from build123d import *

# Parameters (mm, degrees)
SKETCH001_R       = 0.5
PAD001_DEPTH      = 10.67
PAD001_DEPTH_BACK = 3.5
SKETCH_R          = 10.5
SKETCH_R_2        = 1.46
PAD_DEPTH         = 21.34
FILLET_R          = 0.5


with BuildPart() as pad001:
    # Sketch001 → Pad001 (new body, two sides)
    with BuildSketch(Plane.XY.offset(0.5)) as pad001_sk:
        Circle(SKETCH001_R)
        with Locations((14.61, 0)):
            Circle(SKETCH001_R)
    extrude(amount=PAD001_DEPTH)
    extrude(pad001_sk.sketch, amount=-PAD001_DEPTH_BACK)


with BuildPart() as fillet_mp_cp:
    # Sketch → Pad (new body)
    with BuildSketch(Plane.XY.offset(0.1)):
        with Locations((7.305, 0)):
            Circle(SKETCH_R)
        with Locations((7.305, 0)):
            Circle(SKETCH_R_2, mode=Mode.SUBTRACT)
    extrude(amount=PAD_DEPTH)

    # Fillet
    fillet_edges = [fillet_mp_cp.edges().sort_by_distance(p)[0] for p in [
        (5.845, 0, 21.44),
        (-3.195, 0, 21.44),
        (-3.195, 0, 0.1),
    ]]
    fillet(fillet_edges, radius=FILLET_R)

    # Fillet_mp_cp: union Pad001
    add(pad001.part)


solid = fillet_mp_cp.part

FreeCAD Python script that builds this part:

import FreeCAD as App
import Part
import Sketcher
from FreeCAD import Vector


def edges_at(feature, points):
    """Names of the edges that pass closest to the given points."""
    edges = feature.Shape.Edges
    near = lambda p: min(range(len(edges)), key=lambda i: edges[i].distToShape(Part.Vertex(*p))[0])
    return sorted({f"Edge{near(p) + 1}" for p in points})

doc = App.newDocument("Part")
body = doc.addObject("PartDesign::Body", "Body")
body.AllowCompound = True

sketch1 = body.newObject("Sketcher::SketchObject", "Sketch")
sketch1.AttachmentSupport = (doc.getObject("XY_Plane"), [""])
sketch1.MapMode = "FlatFace"
sketch1.AttachmentOffset = App.Placement(Vector(0, 0, 0.5), App.Rotation())
sketch1.addGeometry(Part.Circle(Vector(0, 0, 0), Vector(0, 0, 1), 0.5), False)
sketch1.addGeometry(Part.Circle(Vector(14.61, 0, 0), Vector(0, 0, 1), 0.5), False)
sketch1.addConstraint(Sketcher.Constraint("Coincident", 0, 3, -1, 1))
sketch1.addConstraint(Sketcher.Constraint("Equal", 0, 1))
sketch1.addConstraint(Sketcher.Constraint("PointOnObject", 1, 3, -1))
sketch1.addConstraint(Sketcher.Constraint("Diameter", 0, 1.0))
sketch1.addConstraint(Sketcher.Constraint("DistanceX", -1, 1, 1, 3, 14.61))
pad1 = body.newObject("PartDesign::Pad", "Pad")
pad1.Profile = sketch1
pad1.Type = "TwoLengths"
pad1.Length = 10.67
pad1.Length2 = 3.5
body2 = doc.addObject("PartDesign::Body", "Body001")

sketch2 = body2.newObject("Sketcher::SketchObject", "Sketch001")
sketch2.AttachmentSupport = (doc.getObject("XY_Plane001"), [""])
sketch2.MapMode = "FlatFace"
sketch2.AttachmentOffset = App.Placement(Vector(0, 0, 0.1), App.Rotation())
sketch2.addGeometry(Part.Circle(Vector(7.305, 0, 0), Vector(0, 0, 1), 10.5), False)
sketch2.addGeometry(Part.Circle(Vector(7.305, 0, 0), Vector(0, 0, 1), 1.46), False)
sketch2.addConstraint(Sketcher.Constraint("Coincident", 1, 3, 0, 3))
sketch2.addConstraint(Sketcher.Constraint("PointOnObject", 0, 3, -1))
sketch2.addConstraint(Sketcher.Constraint("Diameter", 0, 21.0))
sketch2.addConstraint(Sketcher.Constraint("Diameter", 1, 2.92))
sketch2.addConstraint(Sketcher.Constraint("DistanceX", -1, 1, 0, 3, 7.305))
pad2 = body2.newObject("PartDesign::Pad", "Pad001")
pad2.Profile = sketch2
pad2.Length = 21.34
doc.recompute()

fillet = body2.newObject("PartDesign::Fillet", "Fillet")
fillet.Base = (pad2, edges_at(pad2, [(5.845, 0, 21.44), (-3.195, 0, 21.44), (-3.195, 0, 0.1)]))
fillet.Radius = 0.5
doc.recompute()

boolean = body2.newObject("PartDesign::Boolean", "Boolean")
boolean.Type = "Fuse"
boolean.addObjects([body])

doc.recompute()
